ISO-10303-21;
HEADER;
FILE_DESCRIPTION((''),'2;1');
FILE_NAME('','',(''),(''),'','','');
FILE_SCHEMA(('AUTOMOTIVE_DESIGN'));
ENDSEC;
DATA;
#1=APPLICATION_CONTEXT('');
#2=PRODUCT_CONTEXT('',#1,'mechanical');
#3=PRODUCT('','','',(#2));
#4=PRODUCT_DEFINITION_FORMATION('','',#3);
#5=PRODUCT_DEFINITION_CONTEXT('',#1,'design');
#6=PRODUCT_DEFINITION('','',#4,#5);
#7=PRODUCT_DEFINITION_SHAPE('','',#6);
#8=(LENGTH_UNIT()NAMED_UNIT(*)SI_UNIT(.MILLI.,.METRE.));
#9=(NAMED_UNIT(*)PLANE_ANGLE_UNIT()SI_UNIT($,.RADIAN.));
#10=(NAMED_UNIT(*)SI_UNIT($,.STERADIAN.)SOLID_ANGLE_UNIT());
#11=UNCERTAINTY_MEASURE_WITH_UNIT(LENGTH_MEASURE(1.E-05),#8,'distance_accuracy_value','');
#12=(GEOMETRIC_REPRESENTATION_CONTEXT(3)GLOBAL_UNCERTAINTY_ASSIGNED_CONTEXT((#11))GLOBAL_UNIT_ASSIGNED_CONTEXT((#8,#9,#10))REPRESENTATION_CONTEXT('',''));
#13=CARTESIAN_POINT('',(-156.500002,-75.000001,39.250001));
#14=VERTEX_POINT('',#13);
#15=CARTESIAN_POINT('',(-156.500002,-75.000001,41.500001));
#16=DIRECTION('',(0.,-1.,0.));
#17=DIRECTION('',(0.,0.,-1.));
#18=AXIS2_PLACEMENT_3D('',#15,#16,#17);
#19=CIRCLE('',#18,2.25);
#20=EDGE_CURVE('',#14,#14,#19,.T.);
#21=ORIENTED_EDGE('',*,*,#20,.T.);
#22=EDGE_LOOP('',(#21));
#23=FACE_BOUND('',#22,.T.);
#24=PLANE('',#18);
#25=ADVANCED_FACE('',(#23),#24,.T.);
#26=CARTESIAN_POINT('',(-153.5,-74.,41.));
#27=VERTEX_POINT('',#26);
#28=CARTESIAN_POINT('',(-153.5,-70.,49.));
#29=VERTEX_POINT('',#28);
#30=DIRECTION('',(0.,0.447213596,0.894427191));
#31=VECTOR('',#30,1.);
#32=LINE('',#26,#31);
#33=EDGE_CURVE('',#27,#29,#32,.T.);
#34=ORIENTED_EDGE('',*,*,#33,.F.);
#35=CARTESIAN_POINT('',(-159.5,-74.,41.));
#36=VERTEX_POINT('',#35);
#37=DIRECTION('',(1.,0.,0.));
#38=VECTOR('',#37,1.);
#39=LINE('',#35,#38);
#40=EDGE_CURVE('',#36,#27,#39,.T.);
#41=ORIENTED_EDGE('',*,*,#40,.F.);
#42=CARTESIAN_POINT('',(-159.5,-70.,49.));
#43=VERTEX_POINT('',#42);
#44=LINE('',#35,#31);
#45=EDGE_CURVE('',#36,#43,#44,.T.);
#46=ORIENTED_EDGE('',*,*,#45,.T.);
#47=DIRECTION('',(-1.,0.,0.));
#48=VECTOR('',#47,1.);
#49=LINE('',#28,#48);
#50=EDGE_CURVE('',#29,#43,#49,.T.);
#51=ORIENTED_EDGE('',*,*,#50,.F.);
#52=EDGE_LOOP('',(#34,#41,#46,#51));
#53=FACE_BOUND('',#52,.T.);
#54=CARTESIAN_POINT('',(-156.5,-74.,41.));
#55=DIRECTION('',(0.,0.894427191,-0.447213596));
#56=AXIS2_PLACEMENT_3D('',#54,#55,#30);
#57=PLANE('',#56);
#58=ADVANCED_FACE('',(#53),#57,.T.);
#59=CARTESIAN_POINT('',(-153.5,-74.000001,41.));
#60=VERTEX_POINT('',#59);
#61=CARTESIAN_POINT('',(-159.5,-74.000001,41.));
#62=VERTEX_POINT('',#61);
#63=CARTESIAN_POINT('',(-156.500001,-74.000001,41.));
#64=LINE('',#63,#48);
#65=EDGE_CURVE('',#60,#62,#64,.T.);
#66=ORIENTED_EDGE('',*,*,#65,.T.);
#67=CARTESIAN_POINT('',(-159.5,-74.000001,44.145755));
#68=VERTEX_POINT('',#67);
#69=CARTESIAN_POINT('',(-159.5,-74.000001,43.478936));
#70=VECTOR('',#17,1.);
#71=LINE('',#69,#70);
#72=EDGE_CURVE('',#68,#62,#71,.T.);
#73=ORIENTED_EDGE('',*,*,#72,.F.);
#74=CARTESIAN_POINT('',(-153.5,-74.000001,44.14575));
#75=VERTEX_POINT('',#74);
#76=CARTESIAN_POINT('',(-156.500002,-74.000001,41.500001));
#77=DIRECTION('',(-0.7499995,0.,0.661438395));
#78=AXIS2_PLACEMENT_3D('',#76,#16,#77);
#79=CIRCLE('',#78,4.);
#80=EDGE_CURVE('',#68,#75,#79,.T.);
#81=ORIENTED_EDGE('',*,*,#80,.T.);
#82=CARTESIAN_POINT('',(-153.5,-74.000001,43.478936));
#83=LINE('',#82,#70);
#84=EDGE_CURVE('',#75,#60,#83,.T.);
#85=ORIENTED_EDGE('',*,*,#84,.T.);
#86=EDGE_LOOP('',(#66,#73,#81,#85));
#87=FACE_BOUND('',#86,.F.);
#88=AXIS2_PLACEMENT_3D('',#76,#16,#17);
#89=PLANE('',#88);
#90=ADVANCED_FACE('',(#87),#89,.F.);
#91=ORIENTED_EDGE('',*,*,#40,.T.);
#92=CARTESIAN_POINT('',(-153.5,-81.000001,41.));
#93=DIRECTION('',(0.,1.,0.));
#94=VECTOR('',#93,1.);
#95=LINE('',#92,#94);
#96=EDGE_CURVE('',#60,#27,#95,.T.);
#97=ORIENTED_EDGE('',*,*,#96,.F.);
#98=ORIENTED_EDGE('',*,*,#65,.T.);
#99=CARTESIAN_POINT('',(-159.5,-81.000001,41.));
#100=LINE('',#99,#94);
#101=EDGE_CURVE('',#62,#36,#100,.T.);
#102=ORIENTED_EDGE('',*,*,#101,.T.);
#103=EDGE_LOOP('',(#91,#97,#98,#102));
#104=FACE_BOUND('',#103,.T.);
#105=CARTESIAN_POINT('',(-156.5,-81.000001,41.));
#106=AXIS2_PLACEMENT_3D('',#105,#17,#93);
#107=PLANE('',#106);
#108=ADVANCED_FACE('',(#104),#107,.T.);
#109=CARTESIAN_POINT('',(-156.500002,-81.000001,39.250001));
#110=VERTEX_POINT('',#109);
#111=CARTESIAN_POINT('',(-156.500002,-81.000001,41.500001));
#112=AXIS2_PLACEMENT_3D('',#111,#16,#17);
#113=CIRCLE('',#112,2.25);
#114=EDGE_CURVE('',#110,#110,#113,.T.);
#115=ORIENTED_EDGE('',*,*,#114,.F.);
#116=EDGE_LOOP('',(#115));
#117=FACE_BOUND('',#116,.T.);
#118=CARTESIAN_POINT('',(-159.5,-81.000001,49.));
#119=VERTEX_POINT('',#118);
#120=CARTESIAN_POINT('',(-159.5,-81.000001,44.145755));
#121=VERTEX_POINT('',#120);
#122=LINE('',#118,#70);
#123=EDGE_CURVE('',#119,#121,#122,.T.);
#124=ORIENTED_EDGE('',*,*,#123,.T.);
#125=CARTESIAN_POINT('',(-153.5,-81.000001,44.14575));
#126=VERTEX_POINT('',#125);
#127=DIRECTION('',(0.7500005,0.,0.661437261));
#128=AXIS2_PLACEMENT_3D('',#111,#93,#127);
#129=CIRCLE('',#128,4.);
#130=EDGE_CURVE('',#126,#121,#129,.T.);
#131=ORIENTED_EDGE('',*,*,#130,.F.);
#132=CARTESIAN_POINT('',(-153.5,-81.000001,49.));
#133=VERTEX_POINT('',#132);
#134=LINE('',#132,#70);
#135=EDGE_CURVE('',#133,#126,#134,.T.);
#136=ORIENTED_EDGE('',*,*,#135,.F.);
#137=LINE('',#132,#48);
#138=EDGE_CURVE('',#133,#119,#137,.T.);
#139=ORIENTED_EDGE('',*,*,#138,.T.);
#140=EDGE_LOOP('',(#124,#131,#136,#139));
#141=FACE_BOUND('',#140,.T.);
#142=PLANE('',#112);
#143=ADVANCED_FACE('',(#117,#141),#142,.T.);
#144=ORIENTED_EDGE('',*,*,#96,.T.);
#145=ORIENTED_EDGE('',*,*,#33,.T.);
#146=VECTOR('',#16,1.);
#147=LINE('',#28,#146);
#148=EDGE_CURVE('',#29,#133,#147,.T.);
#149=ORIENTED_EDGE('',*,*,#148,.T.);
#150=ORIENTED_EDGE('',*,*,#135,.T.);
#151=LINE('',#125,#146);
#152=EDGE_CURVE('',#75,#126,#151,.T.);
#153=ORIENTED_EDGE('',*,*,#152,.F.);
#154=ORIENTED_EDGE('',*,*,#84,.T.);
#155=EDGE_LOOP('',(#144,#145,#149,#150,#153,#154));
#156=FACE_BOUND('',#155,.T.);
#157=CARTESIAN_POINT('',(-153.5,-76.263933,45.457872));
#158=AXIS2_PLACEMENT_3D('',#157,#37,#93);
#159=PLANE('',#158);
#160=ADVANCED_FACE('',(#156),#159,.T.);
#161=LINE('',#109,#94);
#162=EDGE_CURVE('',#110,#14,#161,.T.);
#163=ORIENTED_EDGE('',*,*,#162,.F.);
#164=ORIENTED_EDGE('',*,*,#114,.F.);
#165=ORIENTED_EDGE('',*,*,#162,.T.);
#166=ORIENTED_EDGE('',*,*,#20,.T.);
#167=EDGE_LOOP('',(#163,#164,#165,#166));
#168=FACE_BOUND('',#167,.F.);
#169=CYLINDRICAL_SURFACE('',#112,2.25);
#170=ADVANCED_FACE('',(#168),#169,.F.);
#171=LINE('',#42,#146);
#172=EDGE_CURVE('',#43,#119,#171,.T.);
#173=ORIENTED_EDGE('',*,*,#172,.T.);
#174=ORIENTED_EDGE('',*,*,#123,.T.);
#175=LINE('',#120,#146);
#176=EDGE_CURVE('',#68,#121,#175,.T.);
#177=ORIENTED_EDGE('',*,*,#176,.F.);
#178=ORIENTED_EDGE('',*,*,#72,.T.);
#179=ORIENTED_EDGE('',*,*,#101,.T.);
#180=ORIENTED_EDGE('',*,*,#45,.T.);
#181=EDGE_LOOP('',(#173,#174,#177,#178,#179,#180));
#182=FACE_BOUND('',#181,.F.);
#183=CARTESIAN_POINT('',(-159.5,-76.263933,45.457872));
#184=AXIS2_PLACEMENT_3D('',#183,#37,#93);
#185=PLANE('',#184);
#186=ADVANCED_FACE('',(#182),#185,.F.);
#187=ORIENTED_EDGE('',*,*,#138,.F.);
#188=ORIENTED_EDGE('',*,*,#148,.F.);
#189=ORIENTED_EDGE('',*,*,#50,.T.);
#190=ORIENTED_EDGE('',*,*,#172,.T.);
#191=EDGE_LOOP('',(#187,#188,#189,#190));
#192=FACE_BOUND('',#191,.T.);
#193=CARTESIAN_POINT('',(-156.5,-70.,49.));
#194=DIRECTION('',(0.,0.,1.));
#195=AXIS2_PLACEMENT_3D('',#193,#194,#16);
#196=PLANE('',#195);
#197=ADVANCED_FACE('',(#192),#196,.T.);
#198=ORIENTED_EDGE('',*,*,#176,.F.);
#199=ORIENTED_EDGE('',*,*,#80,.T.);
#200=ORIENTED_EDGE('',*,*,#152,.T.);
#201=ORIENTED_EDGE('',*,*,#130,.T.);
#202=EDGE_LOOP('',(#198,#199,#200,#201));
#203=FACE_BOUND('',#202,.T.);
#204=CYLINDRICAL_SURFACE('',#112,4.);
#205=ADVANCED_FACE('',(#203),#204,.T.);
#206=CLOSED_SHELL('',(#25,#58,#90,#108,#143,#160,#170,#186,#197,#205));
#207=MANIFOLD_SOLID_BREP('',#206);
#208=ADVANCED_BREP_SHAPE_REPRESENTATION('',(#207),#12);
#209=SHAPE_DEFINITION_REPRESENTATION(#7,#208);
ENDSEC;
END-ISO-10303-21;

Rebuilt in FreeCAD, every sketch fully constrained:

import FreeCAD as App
import Part
import Sketcher


def add_polygon(sketch, points):
    """Adds a closed chain of lines whose ends are joined by coincident constraints."""
    first, n = sketch.GeometryCount, len(points)
    for a, b in zip(points, points[1:] + points[:1]):
        sketch.addGeometry(Part.LineSegment(App.Vector(*a, 0), App.Vector(*b, 0)), False)
    for i in range(n):
        sketch.addConstraint(Sketcher.Constraint("Coincident", first + i, 2, first + (i + 1) % n, 1))

doc = App.newDocument("Part")
params = doc.addObject("Spreadsheet::Sheet", "Params")
for row, (alias, value) in enumerate([
    ("sketch1_width", "7.000001 mm"),
    ("sketch1_width2", "11.000001 mm"),
    ("sketch1_height", "8 mm"),
    ("pad1_length", "6 mm"),
    ("sketch2_diameter", "8 mm"),
    ("pad2_length", "7 mm"),
    ("sketch3_diameter", "4.5 mm"),
    ("pocket1_length", "6 mm"),
], start=1):
    params.set(f"A{row}", alias)
    params.set(f"B{row}", "=" + value)
    params.setAlias(f"B{row}", alias)

body = doc.addObject("PartDesign::Body", "Body")

sketch1 = body.newObject("Sketcher::SketchObject", "Sketch")
sketch1.AttachmentSupport = (doc.getObject("YZ_Plane"), [""])
sketch1.MapMode = "FlatFace"
sketch1.AttachmentOffset = App.Placement(App.Vector(0, 0, -156.5), App.Rotation())
add_polygon(sketch1, [(-81.000001, 49), (-81.000001, 41), (-74, 41), (-70, 49)])
sketch1.addConstraint(Sketcher.Constraint("Vertical", 0))
sketch1.addConstraint(Sketcher.Constraint("Horizontal", 1))
sketch1.addConstraint(Sketcher.Constraint("Horizontal", 3))
sketch1.addConstraint(Sketcher.Constraint("DistanceX", 1, 1, 1, 2, 7.000001))
sketch1.addConstraint(Sketcher.Constraint("DistanceX", 3, 2, 3, 1, 11.000001))
sketch1.addConstraint(Sketcher.Constraint("DistanceY", 0, 2, 0, 1, 8.0))
sketch1.addConstraint(Sketcher.Constraint("DistanceX", 0, 2, -1, 1, 81.000001))
sketch1.addConstraint(Sketcher.Constraint("DistanceY", -1, 1, 0, 2, 41.0))
sketch1.setExpression("Constraints[7]", "Params.sketch1_width")
sketch1.setExpression("Constraints[8]", "Params.sketch1_width2")
sketch1.setExpression("Constraints[9]", "Params.sketch1_height")
pad1 = body.newObject("PartDesign::Pad", "Pad")
pad1.Profile = sketch1
pad1.setExpression("Length", "Params.pad1_length")
pad1.Midplane = True

sketch2 = body.newObject("Sketcher::SketchObject", "Sketch001")
sketch2.AttachmentSupport = (doc.getObject("XZ_Plane"), [""])
sketch2.MapMode = "FlatFace"
sketch2.AttachmentOffset = App.Placement(App.Vector(0, 0, 81.000001), App.Rotation())
sketch2.addGeometry(Part.Circle(App.Vector(-156.500002, 41.500001, 0), App.Vector(0, 0, 1), 4), False)
sketch2.addConstraint(Sketcher.Constraint("Diameter", 0, 8.0))
sketch2.addConstraint(Sketcher.Constraint("DistanceX", 0, 3, -1, 1, 156.500002))
sketch2.addConstraint(Sketcher.Constraint("DistanceY", -1, 1, 0, 3, 41.500001))
sketch2.setExpression("Constraints[0]", "Params.sketch2_diameter")
pad2 = body.newObject("PartDesign::Pad", "Pad001")
pad2.Profile = sketch2
pad2.setExpression("Length", "Params.pad2_length")
pad2.Reversed = True

sketch3 = body.newObject("Sketcher::SketchObject", "Sketch002")
sketch3.AttachmentSupport = (doc.getObject("XZ_Plane"), [""])
sketch3.MapMode = "FlatFace"
sketch3.AttachmentOffset = App.Placement(App.Vector(0, 0, 81.000001), App.Rotation())
sketch3.addGeometry(Part.Circle(App.Vector(-156.500002, 41.500001, 0), App.Vector(0, 0, 1), 2.25), False)
sketch3.addConstraint(Sketcher.Constraint("Diameter", 0, 4.5))
sketch3.addConstraint(Sketcher.Constraint("DistanceX", 0, 3, -1, 1, 156.500002))
sketch3.addConstraint(Sketcher.Constraint("DistanceY", -1, 1, 0, 3, 41.500001))
sketch3.setExpression("Constraints[0]", "Params.sketch3_diameter")
pocket1 = body.newObject("PartDesign::Pocket", "Pocket")
pocket1.Profile = sketch3
pocket1.setExpression("Length", "Params.pocket1_length")

doc.recompute()
